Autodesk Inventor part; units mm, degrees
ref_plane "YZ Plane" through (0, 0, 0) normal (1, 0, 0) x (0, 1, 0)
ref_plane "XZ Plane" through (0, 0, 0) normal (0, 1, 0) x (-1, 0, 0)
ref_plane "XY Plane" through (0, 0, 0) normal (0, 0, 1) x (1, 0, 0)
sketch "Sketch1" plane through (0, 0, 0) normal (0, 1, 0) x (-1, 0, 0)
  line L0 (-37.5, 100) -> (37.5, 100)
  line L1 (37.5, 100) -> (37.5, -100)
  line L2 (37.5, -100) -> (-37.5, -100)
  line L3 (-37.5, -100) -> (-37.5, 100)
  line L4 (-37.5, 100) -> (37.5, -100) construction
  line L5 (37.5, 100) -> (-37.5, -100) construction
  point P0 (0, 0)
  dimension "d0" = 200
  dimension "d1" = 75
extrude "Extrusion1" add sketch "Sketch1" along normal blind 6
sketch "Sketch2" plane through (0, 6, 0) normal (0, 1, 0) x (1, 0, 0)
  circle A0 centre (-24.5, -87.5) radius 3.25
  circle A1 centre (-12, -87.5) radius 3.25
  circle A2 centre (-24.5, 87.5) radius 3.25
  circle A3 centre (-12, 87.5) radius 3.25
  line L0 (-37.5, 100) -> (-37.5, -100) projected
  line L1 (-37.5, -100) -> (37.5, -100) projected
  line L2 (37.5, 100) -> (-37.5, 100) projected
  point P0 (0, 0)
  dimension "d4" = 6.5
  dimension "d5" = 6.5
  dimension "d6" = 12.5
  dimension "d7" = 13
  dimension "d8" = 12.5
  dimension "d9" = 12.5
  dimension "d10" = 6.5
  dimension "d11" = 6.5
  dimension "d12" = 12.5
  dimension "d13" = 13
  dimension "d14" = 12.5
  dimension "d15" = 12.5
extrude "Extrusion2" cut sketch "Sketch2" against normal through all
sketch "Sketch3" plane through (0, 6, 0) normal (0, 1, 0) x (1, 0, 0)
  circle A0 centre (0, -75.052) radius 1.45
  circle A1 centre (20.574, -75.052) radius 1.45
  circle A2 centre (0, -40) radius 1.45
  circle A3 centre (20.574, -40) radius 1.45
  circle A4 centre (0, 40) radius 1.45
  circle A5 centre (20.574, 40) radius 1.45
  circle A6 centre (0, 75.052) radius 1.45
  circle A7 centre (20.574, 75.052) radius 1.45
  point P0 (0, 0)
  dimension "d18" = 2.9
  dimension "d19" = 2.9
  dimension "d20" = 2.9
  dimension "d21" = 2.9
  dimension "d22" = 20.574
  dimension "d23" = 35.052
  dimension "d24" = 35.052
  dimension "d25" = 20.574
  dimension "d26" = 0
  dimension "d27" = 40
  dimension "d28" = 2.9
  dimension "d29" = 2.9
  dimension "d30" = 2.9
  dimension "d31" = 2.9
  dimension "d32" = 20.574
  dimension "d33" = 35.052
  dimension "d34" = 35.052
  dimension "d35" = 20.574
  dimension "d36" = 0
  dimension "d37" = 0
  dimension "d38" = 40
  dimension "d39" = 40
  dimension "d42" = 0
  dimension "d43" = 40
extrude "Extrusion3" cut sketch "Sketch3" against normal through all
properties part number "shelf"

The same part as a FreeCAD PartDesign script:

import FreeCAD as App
import Part
import Sketcher

V = App.Vector

doc = App.newDocument("Part")
body = doc.addObject("PartDesign::Body", "Body")

sketch1 = doc.addObject("Sketcher::SketchObject", "Sketch")
body.addObject(sketch1)
sketch1.AttachmentSupport = (doc.XZ_Plane, [""])
sketch1.MapMode = "FlatFace"
sketch1.addGeometry(Part.LineSegment(V(-38, 100, 0), V(38, 100, 0)), False)
sketch1.addGeometry(Part.LineSegment(V(38, 100, 0), V(38, -100, 0)), False)
sketch1.addGeometry(Part.LineSegment(V(38, -100, 0), V(-38, -100, 0)), False)
sketch1.addGeometry(Part.LineSegment(V(-38, -100, 0), V(-38, 100, 0)), False)
sketch1.addConstraint(Sketcher.Constraint("Coincident", 0, 2, 1, 1))
sketch1.addConstraint(Sketcher.Constraint("Coincident", 1, 2, 2, 1))
sketch1.addConstraint(Sketcher.Constraint("Coincident", 2, 2, 3, 1))
sketch1.addConstraint(Sketcher.Constraint("Coincident", 3, 2, 0, 1))
sketch1.addConstraint(Sketcher.Constraint("Horizontal", 0))
sketch1.addConstraint(Sketcher.Constraint("Vertical", 1))
sketch1.addConstraint(Sketcher.Constraint("Horizontal", 2))
sketch1.addConstraint(Sketcher.Constraint("Vertical", 3))
sketch1.addConstraint(Sketcher.Constraint("Symmetric", 0, 2, 2, 2, -1, 1))
sketch1.addConstraint(Sketcher.Constraint("DistanceX", 0, 1, 0, 2, 75.0))
sketch1.addConstraint(Sketcher.Constraint("DistanceY", 1, 2, 1, 1, 200.0))
pad1 = doc.addObject("PartDesign::Pad", "Pad")
body.addObject(pad1)
pad1.Profile = sketch1
pad1.Length = 6
pad1.Reversed = True

sketch2 = doc.addObject("Sketcher::SketchObject", "Sketch001")
body.addObject(sketch2)
sketch2.AttachmentSupport = (doc.XZ_Plane, [""])
sketch2.MapMode = "FlatFace"
sketch2.AttachmentOffset = App.Placement(V(0, 0, -6), App.Rotation())
sketch2.addGeometry(Part.Circle(V(-24.5, 87.5, 0), V(0, 0, 1), 3.2), False)
sketch2.addGeometry(Part.Circle(V(-12, 87.5, 0), V(0, 0, 1), 3.2), False)
sketch2.addGeometry(Part.Circle(V(-24.5, -87.5, 0), V(0, 0, 1), 3.2), False)
sketch2.addGeometry(Part.Circle(V(-12, -87.5, 0), V(0, 0, 1), 3.2), False)
sketch2.addConstraint(Sketcher.Constraint("Equal", 0, 1))
sketch2.addConstraint(Sketcher.Constraint("Equal", 1, 2))
sketch2.addConstraint(Sketcher.Constraint("Equal", 2, 3))
sketch2.addConstraint(Sketcher.Constraint("Symmetric", 0, 3, 2, 3, -1))
sketch2.addConstraint(Sketcher.Constraint("Symmetric", 1, 3, 3, 3, -1))
sketch2.addConstraint(Sketcher.Constraint("Horizontal", 0, 3, 1, 3))
sketch2.addConstraint(Sketcher.Constraint("Diameter", 0, 6.5))
sketch2.addConstraint(Sketcher.Constraint("DistanceX", 0, 3, 1, 3, 12.5))
sketch2.addConstraint(Sketcher.Constraint("DistanceX", 1, 3, -1, 1, 12.0))
sketch2.addConstraint(Sketcher.Constraint("DistanceY", 2, 3, 0, 3, 175.0))
pocket1 = doc.addObject("PartDesign::Pocket", "Pocket")
body.addObject(pocket1)
pocket1.Profile = sketch2
pocket1.Type = "ThroughAll"
pocket1.Reversed = True

sketch3 = doc.addObject("Sketcher::SketchObject", "Sketch002")
body.addObject(sketch3)
sketch3.AttachmentSupport = (doc.XZ_Plane, [""])
sketch3.MapMode = "FlatFace"
sketch3.AttachmentOffset = App.Placement(V(0, 0, -6), App.Rotation())
sketch3.addGeometry(Part.Circle(V(0, 75.1, 0), V(0, 0, 1), 1.4), False)
sketch3.addGeometry(Part.Circle(V(20.6, 75.1, 0), V(0, 0, 1), 1.4), False)
sketch3.addGeometry(Part.Circle(V(0, 40, 0), V(0, 0, 1), 1.4), False)
sketch3.addGeometry(Part.Circle(V(20.6, 40, 0), V(0, 0, 1), 1.4), False)
sketch3.addGeometry(Part.Circle(V(0, -40, 0), V(0, 0, 1), 1.4), False)
sketch3.addGeometry(Part.Circle(V(20.6, -40, 0), V(0, 0, 1), 1.4), False)
sketch3.addGeometry(Part.Circle(V(0, -75.1, 0), V(0, 0, 1), 1.4), False)
sketch3.addGeometry(Part.Circle(V(20.6, -75.1, 0), V(0, 0, 1), 1.4), False)
sketch3.addConstraint(Sketcher.Constraint("Equal", 0, 1))
sketch3.addConstraint(Sketcher.Constraint("Equal", 1, 2))
sketch3.addConstraint(Sketcher.Constraint("Equal", 2, 3))
sketch3.addConstraint(Sketcher.Constraint("Equal", 3, 4))
sketch3.addConstraint(Sketcher.Constraint("Equal", 4, 5))
sketch3.addConstraint(Sketcher.Constraint("Equal", 5, 6))
sketch3.addConstraint(Sketcher.Constraint("Equal", 6, 7))
sketch3.addConstraint(Sketcher.Constraint("Symmetric", 2, 3, 4, 3, -1, 1))
sketch3.addConstraint(Sketcher.Constraint("Symmetric", 0, 3, 6, 3, -1, 1))
sketch3.addConstraint(Sketcher.Constraint("Symmetric", 3, 3, 5, 3, -1))
sketch3.addConstraint(Sketcher.Constraint("Symmetric", 1, 3, 7, 3, -1))
sketch3.addConstraint(Sketcher.Constraint("PointOnObject", 0, 3, -2))
sketch3.addConstraint(Sketcher.Constraint("PointOnObject", 2, 3, -2))
sketch3.addConstraint(Sketcher.Constraint("Horizontal", 0, 3, 1, 3))
sketch3.addConstraint(Sketcher.Constraint("Horizontal", 2, 3, 3, 3))
sketch3.addConstraint(Sketcher.Constraint("Vertical", 1, 3, 3, 3))
sketch3.addConstraint(Sketcher.Constraint("Diameter", 0, 2.9))
sketch3.addConstraint(Sketcher.Constraint("DistanceY", -1, 1, 2, 3, 40.0))
sketch3.addConstraint(Sketcher.Constraint("DistanceX", -1, 1, 1, 3, 20.574))
sketch3.addConstraint(Sketcher.Constraint("DistanceY", 2, 3, 0, 3, 35.052))
pocket2 = doc.addObject("PartDesign::Pocket", "Pocket001")
body.addObject(pocket2)
pocket2.Profile = sketch3
pocket2.Type = "ThroughAll"
pocket2.Reversed = True

doc.recompute()
